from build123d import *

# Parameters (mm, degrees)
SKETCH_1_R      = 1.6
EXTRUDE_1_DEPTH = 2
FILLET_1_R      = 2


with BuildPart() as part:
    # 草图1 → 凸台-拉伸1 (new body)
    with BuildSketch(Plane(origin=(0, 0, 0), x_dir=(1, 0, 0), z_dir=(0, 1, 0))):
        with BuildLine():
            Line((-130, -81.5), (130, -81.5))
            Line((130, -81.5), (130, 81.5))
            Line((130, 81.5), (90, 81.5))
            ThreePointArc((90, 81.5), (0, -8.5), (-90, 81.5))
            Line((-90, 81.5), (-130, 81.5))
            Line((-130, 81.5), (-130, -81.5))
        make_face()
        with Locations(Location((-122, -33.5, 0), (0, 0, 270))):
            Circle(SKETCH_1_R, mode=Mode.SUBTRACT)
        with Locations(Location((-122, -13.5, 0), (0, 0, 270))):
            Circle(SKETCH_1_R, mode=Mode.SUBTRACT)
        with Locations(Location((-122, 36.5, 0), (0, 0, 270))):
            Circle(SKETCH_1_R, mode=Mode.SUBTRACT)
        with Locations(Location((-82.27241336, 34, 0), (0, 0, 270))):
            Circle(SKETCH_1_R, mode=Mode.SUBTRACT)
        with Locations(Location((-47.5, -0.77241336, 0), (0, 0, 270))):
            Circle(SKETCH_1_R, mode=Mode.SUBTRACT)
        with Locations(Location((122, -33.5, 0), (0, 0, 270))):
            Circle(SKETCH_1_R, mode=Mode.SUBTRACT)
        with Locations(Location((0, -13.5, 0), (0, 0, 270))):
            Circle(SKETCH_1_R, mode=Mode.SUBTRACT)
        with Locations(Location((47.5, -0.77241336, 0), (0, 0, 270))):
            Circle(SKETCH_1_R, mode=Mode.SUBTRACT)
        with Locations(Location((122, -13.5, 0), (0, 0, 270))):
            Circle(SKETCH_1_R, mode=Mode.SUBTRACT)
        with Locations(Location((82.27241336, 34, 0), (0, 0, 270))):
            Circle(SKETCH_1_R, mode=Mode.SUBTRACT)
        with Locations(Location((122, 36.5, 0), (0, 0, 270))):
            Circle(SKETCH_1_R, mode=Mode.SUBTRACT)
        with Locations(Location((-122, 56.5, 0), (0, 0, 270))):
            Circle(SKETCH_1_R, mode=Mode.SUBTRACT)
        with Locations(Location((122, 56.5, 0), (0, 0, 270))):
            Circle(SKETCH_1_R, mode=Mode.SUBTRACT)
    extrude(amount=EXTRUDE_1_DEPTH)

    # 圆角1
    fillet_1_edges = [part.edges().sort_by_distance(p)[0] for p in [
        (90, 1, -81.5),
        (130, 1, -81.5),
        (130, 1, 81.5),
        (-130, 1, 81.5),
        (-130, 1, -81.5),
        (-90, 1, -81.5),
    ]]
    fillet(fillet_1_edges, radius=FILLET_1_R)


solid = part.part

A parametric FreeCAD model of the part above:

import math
import FreeCAD as App
import Part
import Sketcher


def edges_at(feature, points):
    """Names of the edges that pass closest to the given points."""
    edges = feature.Shape.Edges
    near = lambda p: min(range(len(edges)), key=lambda i: edges[i].distToShape(Part.Vertex(*p))[0])
    return sorted({f"Edge{near(p) + 1}" for p in points})

doc = App.newDocument("Part")
body = doc.addObject("PartDesign::Body", "Body")

sketch1 = doc.addObject("Sketcher::SketchObject", "Sketch")
body.addObject(sketch1)
sketch1.AttachmentSupport = (doc.XZ_Plane, [""])
sketch1.MapMode = "FlatFace"
sketch1.addGeometry(Part.LineSegment(App.Vector(-130, 81.5, 0), App.Vector(130, 81.5, 0)), False)
sketch1.addGeometry(Part.LineSegment(App.Vector(130, 81.5, 0), App.Vector(130, -81.5, 0)), False)
sketch1.addGeometry(Part.LineSegment(App.Vector(130, -81.5, 0), App.Vector(90, -81.5, 0)), False)
sketch1.addGeometry(Part.ArcOfCircle(Part.Circle(App.Vector(0, -81.5, 0), App.Vector(0, 0, 1), 90), math.radians(0), math.radians(180)), False)
sketch1.addGeometry(Part.LineSegment(App.Vector(-90, -81.5, 0), App.Vector(-130, -81.5, 0)), False)
sketch1.addGeometry(Part.LineSegment(App.Vector(-130, -81.5, 0), App.Vector(-130, 81.5, 0)), False)
sketch1.addGeometry(Part.Circle(App.Vector(-122, 33.5, 0), App.Vector(0, 0, 1), 1.6), False)
sketch1.addGeometry(Part.Circle(App.Vector(-122, 13.5, 0), App.Vector(0, 0, 1), 1.6), False)
sketch1.addGeometry(Part.Circle(App.Vector(-47.5, 0.772413, 0), App.Vector(0, 0, 1), 1.6), False)
sketch1.addGeometry(Part.Circle(App.Vector(0, 13.5, 0), App.Vector(0, 0, 1), 1.6), False)
sketch1.addGeometry(Part.Circle(App.Vector(122, 33.5, 0), App.Vector(0, 0, 1), 1.6), False)
sketch1.addGeometry(Part.Circle(App.Vector(122, 13.5, 0), App.Vector(0, 0, 1), 1.6), False)
sketch1.addGeometry(Part.Circle(App.Vector(47.5, 0.772413, 0), App.Vector(0, 0, 1), 1.6), False)
sketch1.addGeometry(Part.Circle(App.Vector(-82.272413, -34, 0), App.Vector(0, 0, 1), 1.6), False)
sketch1.addGeometry(Part.Circle(App.Vector(-122, -36.5, 0), App.Vector(0, 0, 1), 1.6), False)
sketch1.addGeometry(Part.Circle(App.Vector(-122, -56.5, 0), App.Vector(0, 0, 1), 1.6), False)
sketch1.addGeometry(Part.Circle(App.Vector(82.272413, -34, 0), App.Vector(0, 0, 1), 1.6), False)
sketch1.addGeometry(Part.Circle(App.Vector(122, -36.5, 0), App.Vector(0, 0, 1), 1.6), False)
sketch1.addGeometry(Part.Circle(App.Vector(122, -56.5, 0), App.Vector(0, 0, 1), 1.6), False)
sketch1.addConstraint(Sketcher.Constraint("Coincident", 0, 2, 1, 1))
sketch1.addConstraint(Sketcher.Constraint("Coincident", 1, 2, 2, 1))
sketch1.addConstraint(Sketcher.Constraint("Coincident", 2, 2, 3, 1))
sketch1.addConstraint(Sketcher.Constraint("Coincident", 3, 2, 4, 1))
sketch1.addConstraint(Sketcher.Constraint("Coincident", 4, 2, 5, 1))
sketch1.addConstraint(Sketcher.Constraint("Coincident", 5, 2, 0, 1))
sketch1.addConstraint(Sketcher.Constraint("Horizontal", 0))
sketch1.addConstraint(Sketcher.Constraint("Vertical", 1))
sketch1.addConstraint(Sketcher.Constraint("Horizontal", 2))
sketch1.addConstraint(Sketcher.Constraint("Horizontal", 4))
sketch1.addConstraint(Sketcher.Constraint("Vertical", 5))
sketch1.addConstraint(Sketcher.Constraint("Equal", 6, 7))
sketch1.addConstraint(Sketcher.Constraint("Equal", 7, 8))
sketch1.addConstraint(Sketcher.Constraint("Equal", 8, 9))
sketch1.addConstraint(Sketcher.Constraint("Equal", 9, 10))
sketch1.addConstraint(Sketcher.Constraint("Equal", 10, 11))
sketch1.addConstraint(Sketcher.Constraint("Equal", 11, 12))
sketch1.addConstraint(Sketcher.Constraint("Equal", 12, 13))
sketch1.addConstraint(Sketcher.Constraint("Equal", 13, 14))
sketch1.addConstraint(Sketcher.Constraint("Equal", 14, 15))
sketch1.addConstraint(Sketcher.Constraint("Equal", 15, 16))
sketch1.addConstraint(Sketcher.Constraint("Equal", 16, 17))
sketch1.addConstraint(Sketcher.Constraint("Equal", 17, 18))
sketch1.addConstraint(Sketcher.Constraint("Symmetric", 0, 2, 4, 2, -1, 1))
sketch1.addConstraint(Sketcher.Constraint("Symmetric", 6, 3, 10, 3, -2))
sketch1.addConstraint(Sketcher.Constraint("Symmetric", 7, 3, 11, 3, -2))
sketch1.addConstraint(Sketcher.Constraint("Symmetric", 8, 3, 12, 3, -2))
sketch1.addConstraint(Sketcher.Constraint("Symmetric", 13, 3, 16, 3, -2))
sketch1.addConstraint(Sketcher.Constraint("Symmetric", 14, 3, 17, 3, -2))
sketch1.addConstraint(Sketcher.Constraint("Symmetric", 15, 3, 18, 3, -2))
sketch1.addConstraint(Sketcher.Constraint("Symmetric", 2, 2, 3, 2, -2))
sketch1.addConstraint(Sketcher.Constraint("PointOnObject", 9, 3, -2))
sketch1.addConstraint(Sketcher.Constraint("Horizontal", 7, 3, 9, 3))
sketch1.addConstraint(Sketcher.Constraint("Horizontal", 3, 3, 1, 2))
sketch1.addConstraint(Sketcher.Constraint("Vertical", 6, 3, 7, 3))
sketch1.addConstraint(Sketcher.Constraint("Vertical", 7, 3, 14, 3))
sketch1.addConstraint(Sketcher.Constraint("Vertical", 14, 3, 15, 3))
sketch1.addConstraint(Sketcher.Constraint("Radius", 3, 90.0))
sketch1.addConstraint(Sketcher.Constraint("Diameter", 6, 3.2))
sketch1.addConstraint(Sketcher.Constraint("DistanceX", 0, 1, 0, 2, 260.0))
sketch1.addConstraint(Sketcher.Constraint("DistanceY", 1, 2, 1, 1, 163.0))
sketch1.addConstraint(Sketcher.Constraint("DistanceX", 6, 3, -1, 1, 122.0))
sketch1.addConstraint(Sketcher.Constraint("DistanceY", 13, 3, -1, 1, 34.0))
sketch1.addConstraint(Sketcher.Constraint("DistanceY", 3, 3, 6, 3, 115.0))
sketch1.addConstraint(Sketcher.Constraint("DistanceY", 7, 3, 6, 3, 20.0))
sketch1.addConstraint(Sketcher.Constraint("DistanceX", 8, 3, 12, 3, 95.0))
sketch1.addConstraint(Sketcher.Constraint("DistanceY", 14, 3, 7, 3, 50.0))
sketch1.addConstraint(Sketcher.Constraint("DistanceY", 15, 3, 14, 3, 20.0))
sketch1.addConstraint(Sketcher.Constraint("DistanceY", -1, 1, 8, 3, 0.772413))
sketch1.addConstraint(Sketcher.Constraint("DistanceX", 13, 3, -1, 1, 82.272413))
pad1 = doc.addObject("PartDesign::Pad", "Pad")
body.addObject(pad1)
pad1.Profile = sketch1
pad1.Length = 2
pad1.Reversed = True
doc.recompute()

fillet = doc.addObject("PartDesign::Fillet", "Fillet")
body.addObject(fillet)
fillet.Base = (pad1, edges_at(pad1, [
    (90, 1, -81.5),
    (130, 1, -81.5),
    (130, 1, 81.5),
    (-130, 1, 81.5),
    (-130, 1, -81.5),
    (-90, 1, -81.5),
]))
fillet.Radius = 2

doc.recompute()
